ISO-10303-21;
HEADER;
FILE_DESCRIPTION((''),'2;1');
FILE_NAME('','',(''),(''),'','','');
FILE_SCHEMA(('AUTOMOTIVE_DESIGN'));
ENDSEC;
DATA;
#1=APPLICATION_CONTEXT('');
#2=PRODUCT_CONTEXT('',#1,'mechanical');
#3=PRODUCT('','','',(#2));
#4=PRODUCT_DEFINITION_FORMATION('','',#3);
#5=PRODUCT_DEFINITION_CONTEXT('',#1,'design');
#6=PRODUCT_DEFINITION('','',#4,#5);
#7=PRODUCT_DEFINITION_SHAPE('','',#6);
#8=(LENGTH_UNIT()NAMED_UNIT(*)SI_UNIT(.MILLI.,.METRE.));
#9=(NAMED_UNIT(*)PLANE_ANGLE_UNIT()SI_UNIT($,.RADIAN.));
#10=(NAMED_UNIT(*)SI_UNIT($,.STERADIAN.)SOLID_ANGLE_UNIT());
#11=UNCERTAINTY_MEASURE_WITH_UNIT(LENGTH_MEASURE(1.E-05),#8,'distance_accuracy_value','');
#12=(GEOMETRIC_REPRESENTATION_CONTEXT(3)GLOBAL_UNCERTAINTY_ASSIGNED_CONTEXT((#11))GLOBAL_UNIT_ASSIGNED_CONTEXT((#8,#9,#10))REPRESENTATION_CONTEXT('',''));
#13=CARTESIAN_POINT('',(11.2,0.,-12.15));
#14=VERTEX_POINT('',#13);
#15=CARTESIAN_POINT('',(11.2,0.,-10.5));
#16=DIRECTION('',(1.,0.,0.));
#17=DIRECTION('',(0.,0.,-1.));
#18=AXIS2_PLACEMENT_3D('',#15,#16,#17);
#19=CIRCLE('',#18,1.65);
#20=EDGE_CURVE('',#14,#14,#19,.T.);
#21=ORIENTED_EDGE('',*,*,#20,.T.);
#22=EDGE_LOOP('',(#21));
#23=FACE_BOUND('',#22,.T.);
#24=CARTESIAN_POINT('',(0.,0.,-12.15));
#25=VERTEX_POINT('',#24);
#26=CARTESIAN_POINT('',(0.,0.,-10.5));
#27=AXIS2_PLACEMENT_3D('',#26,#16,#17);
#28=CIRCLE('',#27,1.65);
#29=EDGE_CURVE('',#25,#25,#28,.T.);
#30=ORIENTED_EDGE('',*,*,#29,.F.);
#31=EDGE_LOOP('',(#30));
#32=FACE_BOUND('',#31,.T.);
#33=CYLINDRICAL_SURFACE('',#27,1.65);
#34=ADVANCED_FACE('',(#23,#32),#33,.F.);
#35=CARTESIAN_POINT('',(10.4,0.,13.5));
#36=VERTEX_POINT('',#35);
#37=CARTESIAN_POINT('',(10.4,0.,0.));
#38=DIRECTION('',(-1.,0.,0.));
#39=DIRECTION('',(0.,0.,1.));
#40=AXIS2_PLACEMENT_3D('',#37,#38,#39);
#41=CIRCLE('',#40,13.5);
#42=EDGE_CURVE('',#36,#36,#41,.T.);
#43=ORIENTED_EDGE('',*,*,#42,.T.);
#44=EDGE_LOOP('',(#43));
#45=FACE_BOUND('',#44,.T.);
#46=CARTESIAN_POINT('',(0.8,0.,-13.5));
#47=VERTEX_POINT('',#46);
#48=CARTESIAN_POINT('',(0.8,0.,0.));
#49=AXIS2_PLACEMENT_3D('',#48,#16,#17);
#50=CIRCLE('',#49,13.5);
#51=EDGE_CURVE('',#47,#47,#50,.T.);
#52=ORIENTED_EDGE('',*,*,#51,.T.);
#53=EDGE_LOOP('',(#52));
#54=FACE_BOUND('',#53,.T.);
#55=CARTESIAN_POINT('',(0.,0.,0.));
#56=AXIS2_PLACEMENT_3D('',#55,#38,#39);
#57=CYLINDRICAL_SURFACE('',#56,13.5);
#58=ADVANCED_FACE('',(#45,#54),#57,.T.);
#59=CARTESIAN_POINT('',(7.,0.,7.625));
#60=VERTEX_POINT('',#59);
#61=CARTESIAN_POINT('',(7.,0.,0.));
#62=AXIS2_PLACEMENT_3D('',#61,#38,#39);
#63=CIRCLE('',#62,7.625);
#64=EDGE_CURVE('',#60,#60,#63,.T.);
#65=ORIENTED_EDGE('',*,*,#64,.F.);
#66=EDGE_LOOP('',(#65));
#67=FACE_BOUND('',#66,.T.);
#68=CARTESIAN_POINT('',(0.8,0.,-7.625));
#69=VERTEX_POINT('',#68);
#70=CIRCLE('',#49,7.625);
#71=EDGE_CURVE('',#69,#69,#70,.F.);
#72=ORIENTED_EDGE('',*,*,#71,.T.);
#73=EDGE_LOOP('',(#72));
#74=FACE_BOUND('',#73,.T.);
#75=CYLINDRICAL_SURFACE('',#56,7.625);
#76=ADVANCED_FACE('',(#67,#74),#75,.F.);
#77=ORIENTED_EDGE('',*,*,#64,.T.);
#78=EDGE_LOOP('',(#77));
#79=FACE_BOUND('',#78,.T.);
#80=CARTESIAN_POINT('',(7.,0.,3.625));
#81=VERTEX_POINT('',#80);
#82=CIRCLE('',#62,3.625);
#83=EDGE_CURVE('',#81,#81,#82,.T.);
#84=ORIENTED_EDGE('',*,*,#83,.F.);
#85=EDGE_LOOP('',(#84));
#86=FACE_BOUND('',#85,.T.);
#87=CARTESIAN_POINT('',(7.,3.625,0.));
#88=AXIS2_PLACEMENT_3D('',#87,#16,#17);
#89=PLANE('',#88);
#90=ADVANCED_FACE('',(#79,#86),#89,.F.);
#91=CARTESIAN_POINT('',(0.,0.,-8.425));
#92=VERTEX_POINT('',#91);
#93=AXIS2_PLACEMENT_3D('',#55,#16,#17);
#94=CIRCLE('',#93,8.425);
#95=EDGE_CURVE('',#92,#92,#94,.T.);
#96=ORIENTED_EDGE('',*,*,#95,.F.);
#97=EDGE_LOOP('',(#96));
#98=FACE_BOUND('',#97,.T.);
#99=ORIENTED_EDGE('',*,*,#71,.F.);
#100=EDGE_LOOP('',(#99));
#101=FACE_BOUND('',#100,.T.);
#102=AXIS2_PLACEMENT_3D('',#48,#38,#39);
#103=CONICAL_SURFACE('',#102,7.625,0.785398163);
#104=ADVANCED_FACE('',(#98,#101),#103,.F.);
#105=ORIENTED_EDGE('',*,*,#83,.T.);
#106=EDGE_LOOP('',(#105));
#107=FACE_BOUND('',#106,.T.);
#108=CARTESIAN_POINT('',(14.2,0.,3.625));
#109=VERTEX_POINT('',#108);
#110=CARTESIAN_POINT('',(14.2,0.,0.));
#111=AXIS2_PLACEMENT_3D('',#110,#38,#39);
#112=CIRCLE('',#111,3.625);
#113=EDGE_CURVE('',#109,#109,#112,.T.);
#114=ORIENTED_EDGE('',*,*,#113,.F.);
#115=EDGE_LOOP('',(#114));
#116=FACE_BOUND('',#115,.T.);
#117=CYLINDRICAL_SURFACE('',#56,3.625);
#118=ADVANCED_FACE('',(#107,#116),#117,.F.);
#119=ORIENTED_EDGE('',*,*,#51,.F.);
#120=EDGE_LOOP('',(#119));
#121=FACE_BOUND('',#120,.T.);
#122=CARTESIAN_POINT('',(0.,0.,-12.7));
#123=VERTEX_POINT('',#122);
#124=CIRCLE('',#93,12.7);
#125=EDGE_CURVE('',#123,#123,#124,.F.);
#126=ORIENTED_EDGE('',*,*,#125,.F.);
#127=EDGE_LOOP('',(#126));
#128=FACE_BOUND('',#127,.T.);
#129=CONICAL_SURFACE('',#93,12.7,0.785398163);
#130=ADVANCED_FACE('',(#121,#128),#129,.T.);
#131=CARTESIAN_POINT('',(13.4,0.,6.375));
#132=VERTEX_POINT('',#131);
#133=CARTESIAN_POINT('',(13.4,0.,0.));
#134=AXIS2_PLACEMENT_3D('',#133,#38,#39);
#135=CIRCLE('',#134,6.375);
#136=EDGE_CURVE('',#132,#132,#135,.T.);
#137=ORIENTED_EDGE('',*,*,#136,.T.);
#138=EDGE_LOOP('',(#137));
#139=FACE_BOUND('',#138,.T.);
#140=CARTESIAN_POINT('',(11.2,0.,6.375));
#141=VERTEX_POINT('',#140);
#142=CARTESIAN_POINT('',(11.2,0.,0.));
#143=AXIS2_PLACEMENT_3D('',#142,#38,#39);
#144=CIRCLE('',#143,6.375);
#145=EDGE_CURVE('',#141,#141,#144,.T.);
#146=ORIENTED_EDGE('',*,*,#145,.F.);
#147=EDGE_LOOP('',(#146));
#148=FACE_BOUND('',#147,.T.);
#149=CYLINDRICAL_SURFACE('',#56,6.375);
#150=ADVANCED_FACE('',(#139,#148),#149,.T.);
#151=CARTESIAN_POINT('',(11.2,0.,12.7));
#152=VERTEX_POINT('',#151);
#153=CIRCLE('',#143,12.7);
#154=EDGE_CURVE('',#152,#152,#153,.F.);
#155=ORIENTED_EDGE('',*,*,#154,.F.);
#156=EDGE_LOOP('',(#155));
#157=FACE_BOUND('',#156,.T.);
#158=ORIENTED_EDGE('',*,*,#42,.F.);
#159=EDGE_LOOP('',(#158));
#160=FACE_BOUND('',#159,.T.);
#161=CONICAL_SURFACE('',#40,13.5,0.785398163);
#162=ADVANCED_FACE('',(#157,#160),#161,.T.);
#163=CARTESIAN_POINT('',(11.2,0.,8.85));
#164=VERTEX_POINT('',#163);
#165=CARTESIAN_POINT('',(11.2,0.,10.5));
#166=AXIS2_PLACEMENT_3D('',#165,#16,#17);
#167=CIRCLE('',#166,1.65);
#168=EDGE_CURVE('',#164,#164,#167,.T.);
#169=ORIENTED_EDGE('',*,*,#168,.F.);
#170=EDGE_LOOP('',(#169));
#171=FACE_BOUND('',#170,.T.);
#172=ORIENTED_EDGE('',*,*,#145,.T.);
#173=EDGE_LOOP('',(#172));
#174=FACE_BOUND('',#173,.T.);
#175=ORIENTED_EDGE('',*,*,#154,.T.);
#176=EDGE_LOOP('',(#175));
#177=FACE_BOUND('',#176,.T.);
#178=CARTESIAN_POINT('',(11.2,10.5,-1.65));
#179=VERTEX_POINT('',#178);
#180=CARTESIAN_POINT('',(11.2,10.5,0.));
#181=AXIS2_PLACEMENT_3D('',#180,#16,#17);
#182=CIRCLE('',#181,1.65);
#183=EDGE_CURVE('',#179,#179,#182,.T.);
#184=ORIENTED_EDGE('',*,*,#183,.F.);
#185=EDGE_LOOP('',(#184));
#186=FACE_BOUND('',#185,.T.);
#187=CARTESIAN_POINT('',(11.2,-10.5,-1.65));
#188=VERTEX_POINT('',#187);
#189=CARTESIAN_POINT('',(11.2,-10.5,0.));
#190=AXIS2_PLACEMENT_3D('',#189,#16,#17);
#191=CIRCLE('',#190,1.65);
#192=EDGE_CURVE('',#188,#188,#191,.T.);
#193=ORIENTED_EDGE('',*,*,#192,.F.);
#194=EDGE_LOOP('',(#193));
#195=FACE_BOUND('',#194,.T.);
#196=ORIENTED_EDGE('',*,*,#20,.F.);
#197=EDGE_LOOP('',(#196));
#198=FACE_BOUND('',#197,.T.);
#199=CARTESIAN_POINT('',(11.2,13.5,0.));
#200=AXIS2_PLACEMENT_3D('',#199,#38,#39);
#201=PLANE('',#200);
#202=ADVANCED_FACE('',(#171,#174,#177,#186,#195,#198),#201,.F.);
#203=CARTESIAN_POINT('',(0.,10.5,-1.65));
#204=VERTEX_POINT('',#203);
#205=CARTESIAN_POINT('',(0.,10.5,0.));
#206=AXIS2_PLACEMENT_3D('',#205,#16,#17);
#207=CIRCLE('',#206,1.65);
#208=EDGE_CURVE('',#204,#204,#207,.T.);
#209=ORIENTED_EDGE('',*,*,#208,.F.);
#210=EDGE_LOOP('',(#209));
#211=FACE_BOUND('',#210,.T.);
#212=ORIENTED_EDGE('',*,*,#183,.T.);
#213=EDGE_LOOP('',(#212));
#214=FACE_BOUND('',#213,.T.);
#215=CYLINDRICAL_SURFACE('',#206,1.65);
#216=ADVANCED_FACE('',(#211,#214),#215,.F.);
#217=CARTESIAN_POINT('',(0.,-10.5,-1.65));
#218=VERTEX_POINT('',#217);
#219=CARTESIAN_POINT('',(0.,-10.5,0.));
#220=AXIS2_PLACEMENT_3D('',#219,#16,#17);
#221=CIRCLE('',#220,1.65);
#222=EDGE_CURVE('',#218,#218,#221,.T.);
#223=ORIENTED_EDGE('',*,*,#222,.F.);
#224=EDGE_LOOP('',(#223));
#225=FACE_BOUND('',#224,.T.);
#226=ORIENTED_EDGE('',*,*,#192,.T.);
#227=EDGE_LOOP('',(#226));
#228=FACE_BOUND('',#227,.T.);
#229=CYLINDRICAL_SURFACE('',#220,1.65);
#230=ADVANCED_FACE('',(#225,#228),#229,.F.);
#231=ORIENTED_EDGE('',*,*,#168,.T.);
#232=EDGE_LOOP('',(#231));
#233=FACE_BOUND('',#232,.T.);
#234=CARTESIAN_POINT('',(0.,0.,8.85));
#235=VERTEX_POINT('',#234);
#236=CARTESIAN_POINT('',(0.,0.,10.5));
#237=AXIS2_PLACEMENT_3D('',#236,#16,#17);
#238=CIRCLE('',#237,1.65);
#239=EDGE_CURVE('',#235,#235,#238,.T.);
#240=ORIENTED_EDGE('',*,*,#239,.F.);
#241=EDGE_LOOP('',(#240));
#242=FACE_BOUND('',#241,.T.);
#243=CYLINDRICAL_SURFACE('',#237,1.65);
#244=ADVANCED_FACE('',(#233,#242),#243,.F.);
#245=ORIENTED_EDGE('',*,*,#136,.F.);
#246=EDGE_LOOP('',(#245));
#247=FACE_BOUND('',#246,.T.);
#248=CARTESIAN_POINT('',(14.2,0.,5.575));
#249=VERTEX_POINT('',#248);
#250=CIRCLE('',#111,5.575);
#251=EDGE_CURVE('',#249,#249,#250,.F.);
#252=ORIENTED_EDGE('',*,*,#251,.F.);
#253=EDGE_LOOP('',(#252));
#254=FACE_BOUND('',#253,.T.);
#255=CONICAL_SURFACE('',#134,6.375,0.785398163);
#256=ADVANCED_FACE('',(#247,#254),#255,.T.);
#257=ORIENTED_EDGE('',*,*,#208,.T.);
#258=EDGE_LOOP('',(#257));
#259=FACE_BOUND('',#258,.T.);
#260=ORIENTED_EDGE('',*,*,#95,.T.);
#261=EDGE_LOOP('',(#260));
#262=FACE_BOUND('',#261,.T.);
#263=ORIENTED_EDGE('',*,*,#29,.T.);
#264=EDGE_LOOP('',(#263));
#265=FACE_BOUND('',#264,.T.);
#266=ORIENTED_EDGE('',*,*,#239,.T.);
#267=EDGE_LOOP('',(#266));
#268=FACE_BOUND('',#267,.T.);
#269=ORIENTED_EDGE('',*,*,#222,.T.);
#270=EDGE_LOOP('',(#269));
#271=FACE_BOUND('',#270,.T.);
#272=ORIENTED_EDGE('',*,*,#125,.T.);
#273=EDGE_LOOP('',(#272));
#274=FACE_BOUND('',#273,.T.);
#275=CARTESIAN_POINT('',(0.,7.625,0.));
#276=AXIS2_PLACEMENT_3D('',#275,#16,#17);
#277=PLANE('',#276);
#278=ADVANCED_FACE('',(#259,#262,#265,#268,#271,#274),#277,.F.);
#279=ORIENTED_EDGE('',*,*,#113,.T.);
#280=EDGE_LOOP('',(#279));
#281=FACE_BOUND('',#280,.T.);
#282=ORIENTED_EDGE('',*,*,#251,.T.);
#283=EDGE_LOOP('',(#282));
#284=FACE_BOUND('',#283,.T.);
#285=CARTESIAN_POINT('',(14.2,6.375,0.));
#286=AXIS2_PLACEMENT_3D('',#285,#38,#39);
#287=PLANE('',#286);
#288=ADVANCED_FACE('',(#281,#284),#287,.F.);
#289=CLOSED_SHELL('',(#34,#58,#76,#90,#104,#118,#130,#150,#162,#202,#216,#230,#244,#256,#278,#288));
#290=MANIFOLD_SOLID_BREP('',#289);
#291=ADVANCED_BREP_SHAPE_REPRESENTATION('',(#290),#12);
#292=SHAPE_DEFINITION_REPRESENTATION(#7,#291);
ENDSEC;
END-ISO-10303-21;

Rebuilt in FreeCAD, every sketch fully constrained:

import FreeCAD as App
import Part
import Sketcher

V = App.Vector
Q = App.Units.Quantity


def edges_at(feature, points):
    """Names of the edges that pass closest to the given points."""
    edges = feature.Shape.Edges
    near = lambda p: min(range(len(edges)), key=lambda i: edges[i].distToShape(Part.Vertex(*p))[0])
    return sorted({f"Edge{near(p) + 1}" for p in points})

doc = App.newDocument("Part")
body = doc.addObject("PartDesign::Body", "Body")

# Sketch on XY plane
sketch1 = doc.addObject("Sketcher::SketchObject", "Sketch")
body.addObject(sketch1)
sketch1.AttachmentSupport = (doc.XY_Plane, [""])
sketch1.MapMode = "FlatFace"
sketch1.addGeometry([
    Part.LineSegment(V(11.2, 13.5, 0), V(0, 13.5, 0)),  # 0
    Part.LineSegment(V(0, 13.5, 0), V(0, 7.6, 0)),  # 1
    Part.LineSegment(V(0, 7.6, 0), V(7, 7.6, 0)),  # 2
    Part.LineSegment(V(7, 7.6, 0), V(7, 3.6, 0)),  # 3
    Part.LineSegment(V(7, 3.6, 0), V(14.2, 3.6, 0)),  # 4
    Part.LineSegment(V(14.2, 3.6, 0), V(14.2, 6.4, 0)),  # 5
    Part.LineSegment(V(14.2, 6.4, 0), V(11.2, 6.4, 0)),  # 6
    Part.LineSegment(V(11.2, 6.4, 0), V(11.2, 13.5, 0)),  # 7
], False)
sketch1.addConstraint([
    Sketcher.Constraint("Coincident", 0, 2, 1, 1),
    Sketcher.Constraint("Coincident", 1, 2, 2, 1),
    Sketcher.Constraint("Coincident", 2, 2, 3, 1),
    Sketcher.Constraint("Coincident", 3, 2, 4, 1),
    Sketcher.Constraint("Coincident", 4, 2, 5, 1),
    Sketcher.Constraint("Coincident", 5, 2, 6, 1),
    Sketcher.Constraint("Coincident", 6, 2, 7, 1),
    Sketcher.Constraint("Coincident", 7, 2, 0, 1),
    Sketcher.Constraint("Horizontal", 0),
    Sketcher.Constraint("Vertical", 1),
    Sketcher.Constraint("Horizontal", 2),
    Sketcher.Constraint("Vertical", 3),
    Sketcher.Constraint("Horizontal", 4),
    Sketcher.Constraint("Vertical", 5),
    Sketcher.Constraint("Horizontal", 6),
    Sketcher.Constraint("Vertical", 7),
    Sketcher.Constraint("PointOnObject", 0, 2, -2),
    Sketcher.Constraint("DistanceX", 2, 1, 2, 2, Q("7 mm")),
    Sketcher.Constraint("DistanceX", 6, 2, 6, 1, Q("3 mm")),
    Sketcher.Constraint("DistanceY", 3, 2, 3, 1, Q("4 mm")),
    Sketcher.Constraint("DistanceX", 0, 2, 0, 1, Q("11.2 mm")),
    Sketcher.Constraint("DistanceY", 5, 1, 5, 2, Q("2.75 mm")),
    Sketcher.Constraint("DistanceY", -1, 1, 0, 2, Q("13.5 mm")),
    Sketcher.Constraint("DistanceY", 1, 2, 1, 1, Q("5.875 mm")),
])
revolution = doc.addObject("PartDesign::Revolution", "Revolution")
body.addObject(revolution)
revolution.Profile = sketch1
revolution.ReferenceAxis = (sketch1, ["H_Axis"])
revolution.Angle = 360

# Sketch on YZ plane
sketch2 = doc.addObject("Sketcher::SketchObject", "Sketch001")
body.addObject(sketch2)
sketch2.AttachmentSupport = (doc.YZ_Plane, [""])
sketch2.MapMode = "FlatFace"
sketch2.AttachmentOffset = App.Placement(V(0, 0, 11.2), App.Rotation())
sketch2.addGeometry([
    Part.Circle(V(10.5, 0, 0), V(0, 0, 1), 1.6),
    Part.Circle(V(0, -10.5, 0), V(0, 0, 1), 1.6),
    Part.Circle(V(-10.5, 0, 0), V(0, 0, 1), 1.6),
    Part.Circle(V(0, 10.5, 0), V(0, 0, 1), 1.6),
], False)
sketch2.addConstraint([
    Sketcher.Constraint("Equal", 0, 1),
    Sketcher.Constraint("Equal", 1, 2),
    Sketcher.Constraint("Equal", 2, 3),
    Sketcher.Constraint("Symmetric", 0, 3, 2, 3, -1, 1),
    Sketcher.Constraint("Symmetric", 1, 3, 3, 3, -1, 1),
    Sketcher.Constraint("PointOnObject", 0, 3, -1),
    Sketcher.Constraint("PointOnObject", 1, 3, -2),
    Sketcher.Constraint("Diameter", 0, Q("3.3 mm")),
    Sketcher.Constraint("DistanceX", 2, 3, 0, 3, Q("21 mm")),
    Sketcher.Constraint("DistanceY", 1, 3, 3, 3, Q("21 mm")),
])
pocket1 = doc.addObject("PartDesign::Pocket", "Pocket")
body.addObject(pocket1)
pocket1.Profile = sketch2
pocket1.Type = "ThroughAll"
doc.recompute()

chamfer = doc.addObject("PartDesign::Chamfer", "Chamfer")
body.addObject(chamfer)
chamfer.Base = (pocket1, edges_at(pocket1, [
    (0, 0, -7.625),
    (0, 0, -13.5),
    (11.2, 0, -13.5),
    (14.2, 0, -6.375),
]))
chamfer.Size = 0.8

doc.recompute()
